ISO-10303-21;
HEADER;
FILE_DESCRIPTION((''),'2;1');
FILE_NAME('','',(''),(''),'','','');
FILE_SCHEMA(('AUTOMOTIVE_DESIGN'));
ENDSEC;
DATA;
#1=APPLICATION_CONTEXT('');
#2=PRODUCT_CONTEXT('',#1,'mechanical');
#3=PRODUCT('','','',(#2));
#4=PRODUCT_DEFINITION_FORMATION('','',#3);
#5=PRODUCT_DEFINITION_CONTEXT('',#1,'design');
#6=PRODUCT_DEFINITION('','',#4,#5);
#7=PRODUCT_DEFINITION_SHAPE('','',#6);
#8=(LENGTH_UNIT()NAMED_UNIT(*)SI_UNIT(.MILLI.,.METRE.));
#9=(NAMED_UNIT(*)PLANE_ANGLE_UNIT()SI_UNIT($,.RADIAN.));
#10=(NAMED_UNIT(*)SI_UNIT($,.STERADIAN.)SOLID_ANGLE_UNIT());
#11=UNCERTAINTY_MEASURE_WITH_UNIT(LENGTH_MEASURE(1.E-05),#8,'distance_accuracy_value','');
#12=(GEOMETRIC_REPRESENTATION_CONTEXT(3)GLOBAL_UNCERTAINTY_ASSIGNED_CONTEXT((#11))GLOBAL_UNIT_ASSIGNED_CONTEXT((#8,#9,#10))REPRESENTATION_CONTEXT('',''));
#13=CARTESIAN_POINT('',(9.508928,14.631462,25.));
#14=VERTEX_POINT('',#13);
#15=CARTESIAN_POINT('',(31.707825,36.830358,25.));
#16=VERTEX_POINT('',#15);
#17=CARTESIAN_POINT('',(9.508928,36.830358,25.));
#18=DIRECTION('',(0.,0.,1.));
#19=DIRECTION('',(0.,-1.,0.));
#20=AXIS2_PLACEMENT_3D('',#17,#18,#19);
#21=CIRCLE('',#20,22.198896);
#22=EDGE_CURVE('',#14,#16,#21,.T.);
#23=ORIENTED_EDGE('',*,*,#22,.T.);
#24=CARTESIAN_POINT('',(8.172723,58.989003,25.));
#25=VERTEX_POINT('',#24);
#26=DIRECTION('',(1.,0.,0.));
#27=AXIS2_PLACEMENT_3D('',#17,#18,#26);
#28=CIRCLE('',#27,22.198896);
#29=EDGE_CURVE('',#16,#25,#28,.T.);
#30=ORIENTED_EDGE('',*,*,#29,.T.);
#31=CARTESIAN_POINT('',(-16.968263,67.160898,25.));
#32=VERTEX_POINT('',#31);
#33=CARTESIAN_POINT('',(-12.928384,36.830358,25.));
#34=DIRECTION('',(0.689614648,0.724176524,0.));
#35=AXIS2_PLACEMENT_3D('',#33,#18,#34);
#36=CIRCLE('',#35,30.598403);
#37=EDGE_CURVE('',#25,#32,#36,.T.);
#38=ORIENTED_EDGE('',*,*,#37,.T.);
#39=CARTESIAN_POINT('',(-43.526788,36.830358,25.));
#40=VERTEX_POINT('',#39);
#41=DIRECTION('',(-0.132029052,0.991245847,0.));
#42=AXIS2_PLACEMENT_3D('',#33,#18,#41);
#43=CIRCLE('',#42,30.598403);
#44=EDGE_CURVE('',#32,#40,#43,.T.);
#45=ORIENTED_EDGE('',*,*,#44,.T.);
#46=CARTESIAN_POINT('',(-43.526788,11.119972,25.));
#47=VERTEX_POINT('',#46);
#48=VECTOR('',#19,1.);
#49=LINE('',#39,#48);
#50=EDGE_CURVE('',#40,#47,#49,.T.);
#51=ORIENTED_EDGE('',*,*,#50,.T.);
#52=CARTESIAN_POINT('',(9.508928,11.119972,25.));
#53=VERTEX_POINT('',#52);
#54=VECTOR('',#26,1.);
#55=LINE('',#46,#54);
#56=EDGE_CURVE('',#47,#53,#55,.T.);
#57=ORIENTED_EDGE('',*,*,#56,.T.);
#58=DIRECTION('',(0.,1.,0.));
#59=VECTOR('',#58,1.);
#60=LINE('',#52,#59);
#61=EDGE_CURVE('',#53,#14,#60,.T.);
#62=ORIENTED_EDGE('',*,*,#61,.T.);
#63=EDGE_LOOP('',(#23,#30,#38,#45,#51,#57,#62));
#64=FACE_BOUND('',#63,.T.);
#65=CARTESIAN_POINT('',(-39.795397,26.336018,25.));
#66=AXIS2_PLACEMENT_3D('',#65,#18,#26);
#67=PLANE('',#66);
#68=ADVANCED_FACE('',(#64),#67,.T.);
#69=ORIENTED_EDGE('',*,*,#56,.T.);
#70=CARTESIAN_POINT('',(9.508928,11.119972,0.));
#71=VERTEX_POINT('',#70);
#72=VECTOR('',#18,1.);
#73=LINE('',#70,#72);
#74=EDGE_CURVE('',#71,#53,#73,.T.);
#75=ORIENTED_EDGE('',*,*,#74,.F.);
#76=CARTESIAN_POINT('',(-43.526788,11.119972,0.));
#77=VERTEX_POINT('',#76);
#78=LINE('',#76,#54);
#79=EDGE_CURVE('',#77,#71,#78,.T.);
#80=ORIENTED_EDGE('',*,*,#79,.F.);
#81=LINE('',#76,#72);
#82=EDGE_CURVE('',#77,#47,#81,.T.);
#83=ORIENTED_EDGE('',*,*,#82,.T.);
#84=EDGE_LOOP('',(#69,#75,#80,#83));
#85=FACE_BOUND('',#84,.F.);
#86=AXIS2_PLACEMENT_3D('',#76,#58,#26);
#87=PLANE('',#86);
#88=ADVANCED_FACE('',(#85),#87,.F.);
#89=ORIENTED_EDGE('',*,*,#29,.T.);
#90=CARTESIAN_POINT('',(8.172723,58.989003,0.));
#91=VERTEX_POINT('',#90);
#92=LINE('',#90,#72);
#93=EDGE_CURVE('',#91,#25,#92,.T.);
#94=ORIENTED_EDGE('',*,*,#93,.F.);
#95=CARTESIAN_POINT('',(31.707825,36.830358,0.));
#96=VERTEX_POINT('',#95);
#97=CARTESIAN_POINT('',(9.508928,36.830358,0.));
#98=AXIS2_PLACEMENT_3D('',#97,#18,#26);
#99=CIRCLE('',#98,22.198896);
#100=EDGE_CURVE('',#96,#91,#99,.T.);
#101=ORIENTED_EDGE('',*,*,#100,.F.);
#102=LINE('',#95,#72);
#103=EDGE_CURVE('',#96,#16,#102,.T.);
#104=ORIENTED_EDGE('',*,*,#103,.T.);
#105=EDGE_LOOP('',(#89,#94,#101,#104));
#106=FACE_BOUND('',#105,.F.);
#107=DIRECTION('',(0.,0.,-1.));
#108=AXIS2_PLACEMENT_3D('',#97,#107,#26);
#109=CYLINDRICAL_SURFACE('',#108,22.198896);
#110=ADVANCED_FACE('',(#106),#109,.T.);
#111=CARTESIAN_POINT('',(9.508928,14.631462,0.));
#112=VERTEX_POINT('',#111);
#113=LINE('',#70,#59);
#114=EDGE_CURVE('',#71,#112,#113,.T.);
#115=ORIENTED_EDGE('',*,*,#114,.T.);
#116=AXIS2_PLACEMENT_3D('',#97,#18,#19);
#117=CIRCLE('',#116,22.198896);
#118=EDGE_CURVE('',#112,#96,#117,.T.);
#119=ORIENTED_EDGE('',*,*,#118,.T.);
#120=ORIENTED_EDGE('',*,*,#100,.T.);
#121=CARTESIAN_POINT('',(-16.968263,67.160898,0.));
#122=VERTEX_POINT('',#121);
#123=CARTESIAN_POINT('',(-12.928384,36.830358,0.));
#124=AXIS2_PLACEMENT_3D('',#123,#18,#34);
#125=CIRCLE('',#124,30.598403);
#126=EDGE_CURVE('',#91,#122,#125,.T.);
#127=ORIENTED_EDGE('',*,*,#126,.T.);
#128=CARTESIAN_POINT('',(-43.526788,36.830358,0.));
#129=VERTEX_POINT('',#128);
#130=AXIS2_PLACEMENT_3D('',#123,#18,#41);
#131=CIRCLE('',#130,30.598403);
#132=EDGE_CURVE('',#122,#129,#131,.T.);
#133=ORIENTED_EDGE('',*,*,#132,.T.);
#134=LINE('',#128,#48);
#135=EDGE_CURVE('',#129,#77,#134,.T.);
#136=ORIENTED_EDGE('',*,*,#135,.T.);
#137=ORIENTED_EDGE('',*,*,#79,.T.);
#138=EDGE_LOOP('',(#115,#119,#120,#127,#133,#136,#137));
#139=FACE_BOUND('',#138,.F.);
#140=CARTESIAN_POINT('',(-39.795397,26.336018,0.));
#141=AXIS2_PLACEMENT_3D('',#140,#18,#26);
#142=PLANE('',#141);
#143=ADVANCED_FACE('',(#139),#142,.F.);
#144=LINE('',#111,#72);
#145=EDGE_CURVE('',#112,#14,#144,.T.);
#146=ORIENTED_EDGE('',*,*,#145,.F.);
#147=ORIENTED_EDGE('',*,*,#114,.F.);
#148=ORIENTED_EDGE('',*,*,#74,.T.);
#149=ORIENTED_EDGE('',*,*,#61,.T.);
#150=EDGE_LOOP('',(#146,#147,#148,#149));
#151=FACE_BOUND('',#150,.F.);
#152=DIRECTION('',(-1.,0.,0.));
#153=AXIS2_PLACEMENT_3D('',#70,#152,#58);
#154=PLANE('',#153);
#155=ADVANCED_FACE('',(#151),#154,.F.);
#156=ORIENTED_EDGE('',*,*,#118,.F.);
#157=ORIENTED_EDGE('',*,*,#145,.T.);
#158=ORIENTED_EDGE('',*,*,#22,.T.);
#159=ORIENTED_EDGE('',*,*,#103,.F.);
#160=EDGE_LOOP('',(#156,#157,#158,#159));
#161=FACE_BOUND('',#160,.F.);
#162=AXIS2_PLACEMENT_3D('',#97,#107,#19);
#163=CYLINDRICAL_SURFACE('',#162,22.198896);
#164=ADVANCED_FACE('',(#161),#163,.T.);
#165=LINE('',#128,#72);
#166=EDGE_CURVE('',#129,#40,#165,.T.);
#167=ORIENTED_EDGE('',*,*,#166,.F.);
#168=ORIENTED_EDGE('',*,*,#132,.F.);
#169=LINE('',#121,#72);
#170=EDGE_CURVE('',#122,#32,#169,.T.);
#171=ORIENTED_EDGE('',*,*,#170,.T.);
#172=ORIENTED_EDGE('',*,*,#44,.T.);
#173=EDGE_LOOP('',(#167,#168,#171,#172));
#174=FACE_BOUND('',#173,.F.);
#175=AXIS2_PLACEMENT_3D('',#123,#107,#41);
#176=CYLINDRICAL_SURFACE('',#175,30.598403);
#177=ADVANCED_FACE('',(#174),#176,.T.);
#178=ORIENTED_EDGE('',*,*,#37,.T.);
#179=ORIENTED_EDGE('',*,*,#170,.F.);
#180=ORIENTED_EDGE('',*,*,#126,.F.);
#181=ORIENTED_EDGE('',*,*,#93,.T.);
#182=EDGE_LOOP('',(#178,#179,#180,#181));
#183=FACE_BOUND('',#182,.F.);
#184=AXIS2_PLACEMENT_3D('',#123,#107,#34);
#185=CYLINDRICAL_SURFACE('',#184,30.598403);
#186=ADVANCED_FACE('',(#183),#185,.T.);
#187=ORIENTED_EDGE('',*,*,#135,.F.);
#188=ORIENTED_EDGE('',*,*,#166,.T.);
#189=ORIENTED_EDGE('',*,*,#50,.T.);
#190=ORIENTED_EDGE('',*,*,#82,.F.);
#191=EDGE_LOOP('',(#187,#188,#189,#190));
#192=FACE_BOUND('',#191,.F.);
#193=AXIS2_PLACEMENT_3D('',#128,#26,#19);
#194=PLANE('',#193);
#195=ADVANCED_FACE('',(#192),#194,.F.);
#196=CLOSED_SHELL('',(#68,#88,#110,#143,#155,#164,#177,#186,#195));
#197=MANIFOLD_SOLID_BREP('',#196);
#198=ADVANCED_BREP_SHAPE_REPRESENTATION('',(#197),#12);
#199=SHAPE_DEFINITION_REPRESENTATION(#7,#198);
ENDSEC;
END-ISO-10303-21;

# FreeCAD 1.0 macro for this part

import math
import FreeCAD as App
import Part
import Sketcher

doc = App.newDocument("Part")
body = doc.addObject("PartDesign::Body", "Body")

# Sketch on XY plane
sketch1 = body.newObject("Sketcher::SketchObject", "Sketch")
sketch1.AttachmentSupport = (doc.getObject("XY_Plane"), [""])
sketch1.MapMode = "FlatFace"
sketch1.addGeometry([
    Part.LineSegment(App.Vector(-43.5, 36.8, 0), App.Vector(-43.5, 11.1, 0)),  # 0
    Part.LineSegment(App.Vector(-43.5, 11.1, 0), App.Vector(9.5, 11.1, 0)),  # 1
    Part.LineSegment(App.Vector(9.5, 11.1, 0), App.Vector(9.5, 14.6, 0)),  # 2
    Part.ArcOfCircle(Part.Circle(App.Vector(9.5, 36.8, 0), App.Vector(0, 0, 1), 22.2), math.radians(-90), math.radians(0)),  # 3
    Part.ArcOfCircle(Part.Circle(App.Vector(9.5, 36.8, 0), App.Vector(0, 0, 1), 22.2), math.radians(0), math.radians(93)),  # 4
    Part.ArcOfCircle(Part.Circle(App.Vector(-12.9, 36.8, 0), App.Vector(0, 0, 1), 30.6), math.radians(46), math.radians(98)),  # 5
    Part.ArcOfCircle(Part.Circle(App.Vector(-12.9, 36.8, 0), App.Vector(0, 0, 1), 30.6), math.radians(98), math.radians(180)),  # 6
], False)
sketch1.addConstraint([
    Sketcher.Constraint("Coincident", 0, 2, 1, 1),
    Sketcher.Constraint("Coincident", 1, 2, 2, 1),
    Sketcher.Constraint("Coincident", 2, 2, 3, 1),
    Sketcher.Constraint("Tangent", 3, 2, 4, 1),
    Sketcher.Constraint("Coincident", 4, 2, 5, 1),
    Sketcher.Constraint("Tangent", 5, 2, 6, 1),
    Sketcher.Constraint("Tangent", 6, 2, 0, 1),
    Sketcher.Constraint("Vertical", 0),
    Sketcher.Constraint("Horizontal", 1),
    Sketcher.Constraint("Vertical", 2),
    Sketcher.Constraint("Equal", 3, 4),
    Sketcher.Constraint("Equal", 5, 6),
    Sketcher.Constraint("Horizontal", 4, 3, 5, 3),
    Sketcher.Constraint("Horizontal", 6, 3, 3, 2),
    Sketcher.Constraint("Vertical", 4, 3, 1, 2),
    Sketcher.Constraint("Radius", 3, 22.198896),
    Sketcher.Constraint("Radius", 5, 30.598403),
    Sketcher.Constraint("DistanceY", 2, 1, 2, 2, 3.511489),
    Sketcher.Constraint("DistanceY", -1, 1, 5, 2, 67.160898),
    Sketcher.Constraint("DistanceX", 1, 1, 1, 2, 53.035716),
    Sketcher.Constraint("DistanceX", -1, 1, 3, 3, 9.508928),
    Sketcher.Constraint("DistanceY", -1, 1, 3, 3, 36.830358),
])
pad1 = body.newObject("PartDesign::Pad", "Pad")
pad1.Profile = sketch1
pad1.Length = 25

doc.recompute()
